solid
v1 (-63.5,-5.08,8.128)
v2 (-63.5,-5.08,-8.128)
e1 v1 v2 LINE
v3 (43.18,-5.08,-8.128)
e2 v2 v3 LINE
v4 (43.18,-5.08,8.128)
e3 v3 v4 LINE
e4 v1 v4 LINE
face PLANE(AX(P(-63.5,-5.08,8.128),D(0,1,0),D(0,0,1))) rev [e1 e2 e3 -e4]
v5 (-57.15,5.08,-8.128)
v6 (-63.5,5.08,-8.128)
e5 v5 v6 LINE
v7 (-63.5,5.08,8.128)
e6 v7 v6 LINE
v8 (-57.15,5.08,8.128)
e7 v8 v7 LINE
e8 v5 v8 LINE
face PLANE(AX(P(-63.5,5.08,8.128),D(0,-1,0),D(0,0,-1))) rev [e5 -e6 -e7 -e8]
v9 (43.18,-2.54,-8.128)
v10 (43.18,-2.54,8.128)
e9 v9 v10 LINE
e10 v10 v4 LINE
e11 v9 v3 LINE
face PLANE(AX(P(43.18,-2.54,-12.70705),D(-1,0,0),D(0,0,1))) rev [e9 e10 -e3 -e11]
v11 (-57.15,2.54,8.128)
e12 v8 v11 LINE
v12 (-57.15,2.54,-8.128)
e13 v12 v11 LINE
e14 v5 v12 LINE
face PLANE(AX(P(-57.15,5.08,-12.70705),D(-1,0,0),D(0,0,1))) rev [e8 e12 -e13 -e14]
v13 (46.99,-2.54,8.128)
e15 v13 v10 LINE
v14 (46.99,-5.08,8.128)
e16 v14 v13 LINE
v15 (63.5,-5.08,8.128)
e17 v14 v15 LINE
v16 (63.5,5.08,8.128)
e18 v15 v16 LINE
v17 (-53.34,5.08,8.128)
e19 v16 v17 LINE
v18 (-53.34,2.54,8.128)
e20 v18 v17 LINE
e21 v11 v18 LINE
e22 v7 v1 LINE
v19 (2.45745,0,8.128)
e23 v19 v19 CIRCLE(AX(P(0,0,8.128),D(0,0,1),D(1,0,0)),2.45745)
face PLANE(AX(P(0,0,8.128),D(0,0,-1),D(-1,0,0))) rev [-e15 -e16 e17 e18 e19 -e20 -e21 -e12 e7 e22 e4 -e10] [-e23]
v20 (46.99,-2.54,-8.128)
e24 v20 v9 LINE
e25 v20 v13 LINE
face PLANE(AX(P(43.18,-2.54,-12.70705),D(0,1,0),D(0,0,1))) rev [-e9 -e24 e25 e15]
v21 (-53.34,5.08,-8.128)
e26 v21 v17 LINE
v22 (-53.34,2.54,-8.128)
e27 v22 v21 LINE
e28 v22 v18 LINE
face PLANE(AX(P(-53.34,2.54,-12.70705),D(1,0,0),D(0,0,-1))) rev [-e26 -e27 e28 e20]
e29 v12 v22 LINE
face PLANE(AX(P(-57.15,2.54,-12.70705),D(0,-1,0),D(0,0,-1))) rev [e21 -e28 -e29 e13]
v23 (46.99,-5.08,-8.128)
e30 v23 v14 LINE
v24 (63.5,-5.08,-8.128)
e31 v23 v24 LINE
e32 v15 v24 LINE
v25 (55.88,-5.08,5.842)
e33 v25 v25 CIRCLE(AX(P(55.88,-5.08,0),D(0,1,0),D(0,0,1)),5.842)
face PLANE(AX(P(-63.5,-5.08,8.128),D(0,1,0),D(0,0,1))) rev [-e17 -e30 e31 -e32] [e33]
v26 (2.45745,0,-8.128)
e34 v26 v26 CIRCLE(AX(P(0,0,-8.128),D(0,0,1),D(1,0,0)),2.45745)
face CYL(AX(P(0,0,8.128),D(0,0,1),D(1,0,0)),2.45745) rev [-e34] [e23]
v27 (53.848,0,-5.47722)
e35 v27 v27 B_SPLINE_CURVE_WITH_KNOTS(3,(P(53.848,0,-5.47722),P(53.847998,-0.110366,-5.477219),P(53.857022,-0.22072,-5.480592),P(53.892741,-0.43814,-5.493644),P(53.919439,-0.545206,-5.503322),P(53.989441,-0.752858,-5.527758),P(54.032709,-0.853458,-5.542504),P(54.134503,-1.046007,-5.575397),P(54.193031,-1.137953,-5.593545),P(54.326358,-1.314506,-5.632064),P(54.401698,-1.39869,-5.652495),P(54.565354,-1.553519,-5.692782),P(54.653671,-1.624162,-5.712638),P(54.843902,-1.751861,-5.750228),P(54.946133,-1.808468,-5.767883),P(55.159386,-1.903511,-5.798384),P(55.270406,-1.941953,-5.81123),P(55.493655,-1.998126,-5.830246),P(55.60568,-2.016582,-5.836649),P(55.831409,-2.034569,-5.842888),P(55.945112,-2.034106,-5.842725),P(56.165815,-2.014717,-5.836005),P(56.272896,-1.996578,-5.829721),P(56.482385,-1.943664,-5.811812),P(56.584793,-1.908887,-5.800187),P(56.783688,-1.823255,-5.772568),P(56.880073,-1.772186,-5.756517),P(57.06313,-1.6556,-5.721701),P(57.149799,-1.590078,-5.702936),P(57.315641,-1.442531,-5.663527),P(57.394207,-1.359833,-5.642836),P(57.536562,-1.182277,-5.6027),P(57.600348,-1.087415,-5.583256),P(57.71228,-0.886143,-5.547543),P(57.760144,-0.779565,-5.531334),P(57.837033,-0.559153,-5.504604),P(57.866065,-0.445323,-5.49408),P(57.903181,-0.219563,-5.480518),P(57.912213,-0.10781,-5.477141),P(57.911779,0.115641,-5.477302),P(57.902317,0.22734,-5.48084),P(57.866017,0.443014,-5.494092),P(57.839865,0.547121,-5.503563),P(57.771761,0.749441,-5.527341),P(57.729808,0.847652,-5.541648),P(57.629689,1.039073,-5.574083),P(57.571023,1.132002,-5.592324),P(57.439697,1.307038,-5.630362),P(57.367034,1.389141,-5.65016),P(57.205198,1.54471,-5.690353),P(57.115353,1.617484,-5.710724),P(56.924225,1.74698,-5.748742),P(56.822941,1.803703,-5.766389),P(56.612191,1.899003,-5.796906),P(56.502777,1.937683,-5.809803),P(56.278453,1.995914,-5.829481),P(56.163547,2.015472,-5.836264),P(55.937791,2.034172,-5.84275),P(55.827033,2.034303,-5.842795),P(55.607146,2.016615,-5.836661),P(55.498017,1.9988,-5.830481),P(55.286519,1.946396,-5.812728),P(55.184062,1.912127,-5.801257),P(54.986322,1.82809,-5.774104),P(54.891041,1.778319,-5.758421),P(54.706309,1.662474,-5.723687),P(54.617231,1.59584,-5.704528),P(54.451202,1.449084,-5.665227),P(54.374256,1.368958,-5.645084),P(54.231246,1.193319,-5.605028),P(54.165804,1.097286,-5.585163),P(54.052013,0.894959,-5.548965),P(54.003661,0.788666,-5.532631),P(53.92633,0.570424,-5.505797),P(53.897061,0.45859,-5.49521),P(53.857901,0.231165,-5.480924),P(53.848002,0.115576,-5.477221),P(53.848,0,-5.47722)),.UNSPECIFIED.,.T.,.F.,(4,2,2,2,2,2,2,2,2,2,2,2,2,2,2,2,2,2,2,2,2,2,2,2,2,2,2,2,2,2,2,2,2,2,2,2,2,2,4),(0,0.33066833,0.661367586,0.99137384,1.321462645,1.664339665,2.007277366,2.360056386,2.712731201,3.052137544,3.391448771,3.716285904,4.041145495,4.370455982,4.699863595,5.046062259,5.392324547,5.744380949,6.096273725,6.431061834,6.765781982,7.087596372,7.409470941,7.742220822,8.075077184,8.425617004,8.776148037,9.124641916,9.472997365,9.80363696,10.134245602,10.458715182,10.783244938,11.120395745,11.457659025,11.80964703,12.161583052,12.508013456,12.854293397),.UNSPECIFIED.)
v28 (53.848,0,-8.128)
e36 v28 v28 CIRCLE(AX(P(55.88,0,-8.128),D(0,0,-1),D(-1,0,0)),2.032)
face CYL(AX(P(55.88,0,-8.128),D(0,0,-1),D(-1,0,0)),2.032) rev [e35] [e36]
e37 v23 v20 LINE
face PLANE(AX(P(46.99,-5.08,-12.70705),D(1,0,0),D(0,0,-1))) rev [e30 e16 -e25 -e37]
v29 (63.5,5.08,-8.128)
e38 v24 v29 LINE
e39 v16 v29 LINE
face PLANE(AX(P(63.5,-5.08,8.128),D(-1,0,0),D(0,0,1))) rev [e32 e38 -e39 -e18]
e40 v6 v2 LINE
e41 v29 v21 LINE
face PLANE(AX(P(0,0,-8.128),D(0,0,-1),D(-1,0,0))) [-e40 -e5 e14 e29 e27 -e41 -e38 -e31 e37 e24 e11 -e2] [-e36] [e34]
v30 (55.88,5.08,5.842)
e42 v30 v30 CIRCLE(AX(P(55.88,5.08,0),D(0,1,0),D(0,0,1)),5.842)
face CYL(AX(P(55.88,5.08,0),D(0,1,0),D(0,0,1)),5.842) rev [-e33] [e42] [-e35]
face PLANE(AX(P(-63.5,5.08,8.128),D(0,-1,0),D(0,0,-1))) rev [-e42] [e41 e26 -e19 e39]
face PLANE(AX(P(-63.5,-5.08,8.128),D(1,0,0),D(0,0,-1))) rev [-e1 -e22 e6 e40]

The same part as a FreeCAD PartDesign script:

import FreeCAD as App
import Part
import Sketcher
from FreeCAD import Vector
Q = App.Units.Quantity


def add_polygon(sketch, points):
    """Adds a closed chain of lines whose ends are joined by coincident constraints."""
    first, n = sketch.GeometryCount, len(points)
    for a, b in zip(points, points[1:] + points[:1]):
        sketch.addGeometry(Part.LineSegment(App.Vector(*a, 0), App.Vector(*b, 0)), False)
    for i in range(n):
        sketch.addConstraint(Sketcher.Constraint("Coincident", first + i, 2, first + (i + 1) % n, 1))

doc = App.newDocument("Part")
body = doc.addObject("PartDesign::Body", "Body")

sketch1 = body.newObject("Sketcher::SketchObject", "Sketch")
sketch1.AttachmentSupport = (doc.getObject("XY_Plane"), [""])
sketch1.MapMode = "FlatFace"
add_polygon(sketch1, [(-63.5, 5.08), (-63.5, -5.08), (63.5, -5.08), (63.5, 5.08)])
sketch1.addConstraint([
    Sketcher.Constraint("Vertical", 0),
    Sketcher.Constraint("Horizontal", 1),
    Sketcher.Constraint("Vertical", 2),
    Sketcher.Constraint("Horizontal", 3),
    Sketcher.Constraint("Symmetric", 0, 2, 2, 2, -1, 1),
    Sketcher.Constraint("DistanceX", 1, 1, 1, 2, Q("5 in")),
    Sketcher.Constraint("DistanceY", 0, 2, 0, 1, Q("0.4 in")),
])
pad1 = body.newObject("PartDesign::Pad", "Pad")
pad1.Profile = sketch1
pad1.Length = Q("0.64 in")
pad1.Midplane = True

sketch2 = body.newObject("Sketcher::SketchObject", "Sketch001")
sketch2.AttachmentSupport = (doc.getObject("XY_Plane"), [""])
sketch2.MapMode = "FlatFace"
sketch2.AttachmentOffset = App.Placement(Vector(0, 0, 0.32 * 25.4), App.Rotation())
sketch2.addGeometry(Part.Circle(Vector(0, 0, 0), Vector(0, 0, 1), 2.45745), False)
sketch2.addConstraint([
    Sketcher.Constraint("Coincident", 0, 3, -1, 1),
    Sketcher.Constraint("Diameter", 0, Q("0.1935 in")),
])
doc.recompute()
hole = body.newObject("PartDesign::Hole", "Hole")
hole.Profile = sketch2
hole.ThreadType = "None"
hole.Diameter = Q("0.1935 in")
hole.DepthType = "ThroughAll"

sketch3 = body.newObject("Sketcher::SketchObject", "Sketch002")
sketch3.AttachmentSupport = (doc.getObject("XY_Plane"), [""])
sketch3.MapMode = "FlatFace"
sketch3.AttachmentOffset = App.Placement(Vector(0, 0, 0.32 * 25.4), App.Rotation())
add_polygon(sketch3, [(-57.15, 5.08), (-57.15, 2.54), (-53.34, 2.54), (-53.34, 5.08)])
add_polygon(sketch3, [(43.18, -2.54), (43.18, -5.08), (46.99, -5.08), (46.99, -2.54)])
sketch3.addConstraint([
    Sketcher.Constraint("Vertical", 0),
    Sketcher.Constraint("Horizontal", 1),
    Sketcher.Constraint("Vertical", 2),
    Sketcher.Constraint("Horizontal", 3),
    Sketcher.Constraint("Vertical", 4),
    Sketcher.Constraint("Horizontal", 5),
    Sketcher.Constraint("Vertical", 6),
    Sketcher.Constraint("Horizontal", 7),
    Sketcher.Constraint("Equal", 3, 5),
    Sketcher.Constraint("Equal", 2, 4),
    Sketcher.Constraint("DistanceY", 0, 2, 0, 1, Q("0.1 in")),
    Sketcher.Constraint("DistanceX", 1, 1, 1, 2, Q("0.15 in")),
    Sketcher.Constraint("DistanceY", -1, 1, 0, 2, Q("0.1 in")),
    Sketcher.Constraint("DistanceX", 1, 2, -1, 1, Q("2.1 in")),
    Sketcher.Constraint("DistanceX", -1, 1, 4, 2, Q("1.7 in")),
    Sketcher.Constraint("DistanceY", 4, 2, -1, 1, Q("0.2 in")),
])
pocket1 = body.newObject("PartDesign::Pocket", "Pocket")
pocket1.Profile = sketch3
pocket1.Length = Q("0.64 in")

sketch4 = body.newObject("Sketcher::SketchObject", "Sketch003")
sketch4.AttachmentSupport = (doc.getObject("XZ_Plane"), [""])
sketch4.MapMode = "FlatFace"
sketch4.AttachmentOffset = App.Placement(Vector(0, 0, -0.2 * 25.4), App.Rotation())
sketch4.addGeometry(Part.Circle(Vector(55.88, 0, 0), Vector(0, 0, 1), 5.842), False)
sketch4.addConstraint([
    Sketcher.Constraint("PointOnObject", 0, 3, -1),
    Sketcher.Constraint("Diameter", 0, Q("0.46 in")),
    Sketcher.Constraint("DistanceX", -1, 1, 0, 3, Q("2.2 in")),
])
doc.recompute()
hole2 = body.newObject("PartDesign::Hole", "Hole001")
hole2.Profile = sketch4
hole2.ThreadType = "None"
hole2.Diameter = Q("0.46 in")
hole2.DepthType = "ThroughAll"
hole2.Reversed = True

sketch5 = body.newObject("Sketcher::SketchObject", "Sketch004")
sketch5.AttachmentSupport = (doc.getObject("XY_Plane"), [""])
sketch5.MapMode = "FlatFace"
sketch5.AttachmentOffset = App.Placement(Vector(0, 0, -0.32 * 25.4), App.Rotation())
sketch5.addGeometry(Part.Circle(Vector(55.88, 0, 0), Vector(0, 0, 1), 2.032), False)
sketch5.addConstraint([
    Sketcher.Constraint("PointOnObject", 0, 3, -1),
    Sketcher.Constraint("Diameter", 0, Q("0.16 in")),
    Sketcher.Constraint("DistanceX", -1, 1, 0, 3, Q("2.2 in")),
])
doc.recompute()
hole3 = body.newObject("PartDesign::Hole", "Hole002")
hole3.Profile = sketch5
hole3.ThreadType = "None"
hole3.Diameter = Q("0.16 in")
hole3.DepthType = "Dimension"
hole3.Depth = 6.906051
hole3.DrillPoint = "Angled"
hole3.DrillPointAngle = 118
hole3.Reversed = True

doc.recompute()
